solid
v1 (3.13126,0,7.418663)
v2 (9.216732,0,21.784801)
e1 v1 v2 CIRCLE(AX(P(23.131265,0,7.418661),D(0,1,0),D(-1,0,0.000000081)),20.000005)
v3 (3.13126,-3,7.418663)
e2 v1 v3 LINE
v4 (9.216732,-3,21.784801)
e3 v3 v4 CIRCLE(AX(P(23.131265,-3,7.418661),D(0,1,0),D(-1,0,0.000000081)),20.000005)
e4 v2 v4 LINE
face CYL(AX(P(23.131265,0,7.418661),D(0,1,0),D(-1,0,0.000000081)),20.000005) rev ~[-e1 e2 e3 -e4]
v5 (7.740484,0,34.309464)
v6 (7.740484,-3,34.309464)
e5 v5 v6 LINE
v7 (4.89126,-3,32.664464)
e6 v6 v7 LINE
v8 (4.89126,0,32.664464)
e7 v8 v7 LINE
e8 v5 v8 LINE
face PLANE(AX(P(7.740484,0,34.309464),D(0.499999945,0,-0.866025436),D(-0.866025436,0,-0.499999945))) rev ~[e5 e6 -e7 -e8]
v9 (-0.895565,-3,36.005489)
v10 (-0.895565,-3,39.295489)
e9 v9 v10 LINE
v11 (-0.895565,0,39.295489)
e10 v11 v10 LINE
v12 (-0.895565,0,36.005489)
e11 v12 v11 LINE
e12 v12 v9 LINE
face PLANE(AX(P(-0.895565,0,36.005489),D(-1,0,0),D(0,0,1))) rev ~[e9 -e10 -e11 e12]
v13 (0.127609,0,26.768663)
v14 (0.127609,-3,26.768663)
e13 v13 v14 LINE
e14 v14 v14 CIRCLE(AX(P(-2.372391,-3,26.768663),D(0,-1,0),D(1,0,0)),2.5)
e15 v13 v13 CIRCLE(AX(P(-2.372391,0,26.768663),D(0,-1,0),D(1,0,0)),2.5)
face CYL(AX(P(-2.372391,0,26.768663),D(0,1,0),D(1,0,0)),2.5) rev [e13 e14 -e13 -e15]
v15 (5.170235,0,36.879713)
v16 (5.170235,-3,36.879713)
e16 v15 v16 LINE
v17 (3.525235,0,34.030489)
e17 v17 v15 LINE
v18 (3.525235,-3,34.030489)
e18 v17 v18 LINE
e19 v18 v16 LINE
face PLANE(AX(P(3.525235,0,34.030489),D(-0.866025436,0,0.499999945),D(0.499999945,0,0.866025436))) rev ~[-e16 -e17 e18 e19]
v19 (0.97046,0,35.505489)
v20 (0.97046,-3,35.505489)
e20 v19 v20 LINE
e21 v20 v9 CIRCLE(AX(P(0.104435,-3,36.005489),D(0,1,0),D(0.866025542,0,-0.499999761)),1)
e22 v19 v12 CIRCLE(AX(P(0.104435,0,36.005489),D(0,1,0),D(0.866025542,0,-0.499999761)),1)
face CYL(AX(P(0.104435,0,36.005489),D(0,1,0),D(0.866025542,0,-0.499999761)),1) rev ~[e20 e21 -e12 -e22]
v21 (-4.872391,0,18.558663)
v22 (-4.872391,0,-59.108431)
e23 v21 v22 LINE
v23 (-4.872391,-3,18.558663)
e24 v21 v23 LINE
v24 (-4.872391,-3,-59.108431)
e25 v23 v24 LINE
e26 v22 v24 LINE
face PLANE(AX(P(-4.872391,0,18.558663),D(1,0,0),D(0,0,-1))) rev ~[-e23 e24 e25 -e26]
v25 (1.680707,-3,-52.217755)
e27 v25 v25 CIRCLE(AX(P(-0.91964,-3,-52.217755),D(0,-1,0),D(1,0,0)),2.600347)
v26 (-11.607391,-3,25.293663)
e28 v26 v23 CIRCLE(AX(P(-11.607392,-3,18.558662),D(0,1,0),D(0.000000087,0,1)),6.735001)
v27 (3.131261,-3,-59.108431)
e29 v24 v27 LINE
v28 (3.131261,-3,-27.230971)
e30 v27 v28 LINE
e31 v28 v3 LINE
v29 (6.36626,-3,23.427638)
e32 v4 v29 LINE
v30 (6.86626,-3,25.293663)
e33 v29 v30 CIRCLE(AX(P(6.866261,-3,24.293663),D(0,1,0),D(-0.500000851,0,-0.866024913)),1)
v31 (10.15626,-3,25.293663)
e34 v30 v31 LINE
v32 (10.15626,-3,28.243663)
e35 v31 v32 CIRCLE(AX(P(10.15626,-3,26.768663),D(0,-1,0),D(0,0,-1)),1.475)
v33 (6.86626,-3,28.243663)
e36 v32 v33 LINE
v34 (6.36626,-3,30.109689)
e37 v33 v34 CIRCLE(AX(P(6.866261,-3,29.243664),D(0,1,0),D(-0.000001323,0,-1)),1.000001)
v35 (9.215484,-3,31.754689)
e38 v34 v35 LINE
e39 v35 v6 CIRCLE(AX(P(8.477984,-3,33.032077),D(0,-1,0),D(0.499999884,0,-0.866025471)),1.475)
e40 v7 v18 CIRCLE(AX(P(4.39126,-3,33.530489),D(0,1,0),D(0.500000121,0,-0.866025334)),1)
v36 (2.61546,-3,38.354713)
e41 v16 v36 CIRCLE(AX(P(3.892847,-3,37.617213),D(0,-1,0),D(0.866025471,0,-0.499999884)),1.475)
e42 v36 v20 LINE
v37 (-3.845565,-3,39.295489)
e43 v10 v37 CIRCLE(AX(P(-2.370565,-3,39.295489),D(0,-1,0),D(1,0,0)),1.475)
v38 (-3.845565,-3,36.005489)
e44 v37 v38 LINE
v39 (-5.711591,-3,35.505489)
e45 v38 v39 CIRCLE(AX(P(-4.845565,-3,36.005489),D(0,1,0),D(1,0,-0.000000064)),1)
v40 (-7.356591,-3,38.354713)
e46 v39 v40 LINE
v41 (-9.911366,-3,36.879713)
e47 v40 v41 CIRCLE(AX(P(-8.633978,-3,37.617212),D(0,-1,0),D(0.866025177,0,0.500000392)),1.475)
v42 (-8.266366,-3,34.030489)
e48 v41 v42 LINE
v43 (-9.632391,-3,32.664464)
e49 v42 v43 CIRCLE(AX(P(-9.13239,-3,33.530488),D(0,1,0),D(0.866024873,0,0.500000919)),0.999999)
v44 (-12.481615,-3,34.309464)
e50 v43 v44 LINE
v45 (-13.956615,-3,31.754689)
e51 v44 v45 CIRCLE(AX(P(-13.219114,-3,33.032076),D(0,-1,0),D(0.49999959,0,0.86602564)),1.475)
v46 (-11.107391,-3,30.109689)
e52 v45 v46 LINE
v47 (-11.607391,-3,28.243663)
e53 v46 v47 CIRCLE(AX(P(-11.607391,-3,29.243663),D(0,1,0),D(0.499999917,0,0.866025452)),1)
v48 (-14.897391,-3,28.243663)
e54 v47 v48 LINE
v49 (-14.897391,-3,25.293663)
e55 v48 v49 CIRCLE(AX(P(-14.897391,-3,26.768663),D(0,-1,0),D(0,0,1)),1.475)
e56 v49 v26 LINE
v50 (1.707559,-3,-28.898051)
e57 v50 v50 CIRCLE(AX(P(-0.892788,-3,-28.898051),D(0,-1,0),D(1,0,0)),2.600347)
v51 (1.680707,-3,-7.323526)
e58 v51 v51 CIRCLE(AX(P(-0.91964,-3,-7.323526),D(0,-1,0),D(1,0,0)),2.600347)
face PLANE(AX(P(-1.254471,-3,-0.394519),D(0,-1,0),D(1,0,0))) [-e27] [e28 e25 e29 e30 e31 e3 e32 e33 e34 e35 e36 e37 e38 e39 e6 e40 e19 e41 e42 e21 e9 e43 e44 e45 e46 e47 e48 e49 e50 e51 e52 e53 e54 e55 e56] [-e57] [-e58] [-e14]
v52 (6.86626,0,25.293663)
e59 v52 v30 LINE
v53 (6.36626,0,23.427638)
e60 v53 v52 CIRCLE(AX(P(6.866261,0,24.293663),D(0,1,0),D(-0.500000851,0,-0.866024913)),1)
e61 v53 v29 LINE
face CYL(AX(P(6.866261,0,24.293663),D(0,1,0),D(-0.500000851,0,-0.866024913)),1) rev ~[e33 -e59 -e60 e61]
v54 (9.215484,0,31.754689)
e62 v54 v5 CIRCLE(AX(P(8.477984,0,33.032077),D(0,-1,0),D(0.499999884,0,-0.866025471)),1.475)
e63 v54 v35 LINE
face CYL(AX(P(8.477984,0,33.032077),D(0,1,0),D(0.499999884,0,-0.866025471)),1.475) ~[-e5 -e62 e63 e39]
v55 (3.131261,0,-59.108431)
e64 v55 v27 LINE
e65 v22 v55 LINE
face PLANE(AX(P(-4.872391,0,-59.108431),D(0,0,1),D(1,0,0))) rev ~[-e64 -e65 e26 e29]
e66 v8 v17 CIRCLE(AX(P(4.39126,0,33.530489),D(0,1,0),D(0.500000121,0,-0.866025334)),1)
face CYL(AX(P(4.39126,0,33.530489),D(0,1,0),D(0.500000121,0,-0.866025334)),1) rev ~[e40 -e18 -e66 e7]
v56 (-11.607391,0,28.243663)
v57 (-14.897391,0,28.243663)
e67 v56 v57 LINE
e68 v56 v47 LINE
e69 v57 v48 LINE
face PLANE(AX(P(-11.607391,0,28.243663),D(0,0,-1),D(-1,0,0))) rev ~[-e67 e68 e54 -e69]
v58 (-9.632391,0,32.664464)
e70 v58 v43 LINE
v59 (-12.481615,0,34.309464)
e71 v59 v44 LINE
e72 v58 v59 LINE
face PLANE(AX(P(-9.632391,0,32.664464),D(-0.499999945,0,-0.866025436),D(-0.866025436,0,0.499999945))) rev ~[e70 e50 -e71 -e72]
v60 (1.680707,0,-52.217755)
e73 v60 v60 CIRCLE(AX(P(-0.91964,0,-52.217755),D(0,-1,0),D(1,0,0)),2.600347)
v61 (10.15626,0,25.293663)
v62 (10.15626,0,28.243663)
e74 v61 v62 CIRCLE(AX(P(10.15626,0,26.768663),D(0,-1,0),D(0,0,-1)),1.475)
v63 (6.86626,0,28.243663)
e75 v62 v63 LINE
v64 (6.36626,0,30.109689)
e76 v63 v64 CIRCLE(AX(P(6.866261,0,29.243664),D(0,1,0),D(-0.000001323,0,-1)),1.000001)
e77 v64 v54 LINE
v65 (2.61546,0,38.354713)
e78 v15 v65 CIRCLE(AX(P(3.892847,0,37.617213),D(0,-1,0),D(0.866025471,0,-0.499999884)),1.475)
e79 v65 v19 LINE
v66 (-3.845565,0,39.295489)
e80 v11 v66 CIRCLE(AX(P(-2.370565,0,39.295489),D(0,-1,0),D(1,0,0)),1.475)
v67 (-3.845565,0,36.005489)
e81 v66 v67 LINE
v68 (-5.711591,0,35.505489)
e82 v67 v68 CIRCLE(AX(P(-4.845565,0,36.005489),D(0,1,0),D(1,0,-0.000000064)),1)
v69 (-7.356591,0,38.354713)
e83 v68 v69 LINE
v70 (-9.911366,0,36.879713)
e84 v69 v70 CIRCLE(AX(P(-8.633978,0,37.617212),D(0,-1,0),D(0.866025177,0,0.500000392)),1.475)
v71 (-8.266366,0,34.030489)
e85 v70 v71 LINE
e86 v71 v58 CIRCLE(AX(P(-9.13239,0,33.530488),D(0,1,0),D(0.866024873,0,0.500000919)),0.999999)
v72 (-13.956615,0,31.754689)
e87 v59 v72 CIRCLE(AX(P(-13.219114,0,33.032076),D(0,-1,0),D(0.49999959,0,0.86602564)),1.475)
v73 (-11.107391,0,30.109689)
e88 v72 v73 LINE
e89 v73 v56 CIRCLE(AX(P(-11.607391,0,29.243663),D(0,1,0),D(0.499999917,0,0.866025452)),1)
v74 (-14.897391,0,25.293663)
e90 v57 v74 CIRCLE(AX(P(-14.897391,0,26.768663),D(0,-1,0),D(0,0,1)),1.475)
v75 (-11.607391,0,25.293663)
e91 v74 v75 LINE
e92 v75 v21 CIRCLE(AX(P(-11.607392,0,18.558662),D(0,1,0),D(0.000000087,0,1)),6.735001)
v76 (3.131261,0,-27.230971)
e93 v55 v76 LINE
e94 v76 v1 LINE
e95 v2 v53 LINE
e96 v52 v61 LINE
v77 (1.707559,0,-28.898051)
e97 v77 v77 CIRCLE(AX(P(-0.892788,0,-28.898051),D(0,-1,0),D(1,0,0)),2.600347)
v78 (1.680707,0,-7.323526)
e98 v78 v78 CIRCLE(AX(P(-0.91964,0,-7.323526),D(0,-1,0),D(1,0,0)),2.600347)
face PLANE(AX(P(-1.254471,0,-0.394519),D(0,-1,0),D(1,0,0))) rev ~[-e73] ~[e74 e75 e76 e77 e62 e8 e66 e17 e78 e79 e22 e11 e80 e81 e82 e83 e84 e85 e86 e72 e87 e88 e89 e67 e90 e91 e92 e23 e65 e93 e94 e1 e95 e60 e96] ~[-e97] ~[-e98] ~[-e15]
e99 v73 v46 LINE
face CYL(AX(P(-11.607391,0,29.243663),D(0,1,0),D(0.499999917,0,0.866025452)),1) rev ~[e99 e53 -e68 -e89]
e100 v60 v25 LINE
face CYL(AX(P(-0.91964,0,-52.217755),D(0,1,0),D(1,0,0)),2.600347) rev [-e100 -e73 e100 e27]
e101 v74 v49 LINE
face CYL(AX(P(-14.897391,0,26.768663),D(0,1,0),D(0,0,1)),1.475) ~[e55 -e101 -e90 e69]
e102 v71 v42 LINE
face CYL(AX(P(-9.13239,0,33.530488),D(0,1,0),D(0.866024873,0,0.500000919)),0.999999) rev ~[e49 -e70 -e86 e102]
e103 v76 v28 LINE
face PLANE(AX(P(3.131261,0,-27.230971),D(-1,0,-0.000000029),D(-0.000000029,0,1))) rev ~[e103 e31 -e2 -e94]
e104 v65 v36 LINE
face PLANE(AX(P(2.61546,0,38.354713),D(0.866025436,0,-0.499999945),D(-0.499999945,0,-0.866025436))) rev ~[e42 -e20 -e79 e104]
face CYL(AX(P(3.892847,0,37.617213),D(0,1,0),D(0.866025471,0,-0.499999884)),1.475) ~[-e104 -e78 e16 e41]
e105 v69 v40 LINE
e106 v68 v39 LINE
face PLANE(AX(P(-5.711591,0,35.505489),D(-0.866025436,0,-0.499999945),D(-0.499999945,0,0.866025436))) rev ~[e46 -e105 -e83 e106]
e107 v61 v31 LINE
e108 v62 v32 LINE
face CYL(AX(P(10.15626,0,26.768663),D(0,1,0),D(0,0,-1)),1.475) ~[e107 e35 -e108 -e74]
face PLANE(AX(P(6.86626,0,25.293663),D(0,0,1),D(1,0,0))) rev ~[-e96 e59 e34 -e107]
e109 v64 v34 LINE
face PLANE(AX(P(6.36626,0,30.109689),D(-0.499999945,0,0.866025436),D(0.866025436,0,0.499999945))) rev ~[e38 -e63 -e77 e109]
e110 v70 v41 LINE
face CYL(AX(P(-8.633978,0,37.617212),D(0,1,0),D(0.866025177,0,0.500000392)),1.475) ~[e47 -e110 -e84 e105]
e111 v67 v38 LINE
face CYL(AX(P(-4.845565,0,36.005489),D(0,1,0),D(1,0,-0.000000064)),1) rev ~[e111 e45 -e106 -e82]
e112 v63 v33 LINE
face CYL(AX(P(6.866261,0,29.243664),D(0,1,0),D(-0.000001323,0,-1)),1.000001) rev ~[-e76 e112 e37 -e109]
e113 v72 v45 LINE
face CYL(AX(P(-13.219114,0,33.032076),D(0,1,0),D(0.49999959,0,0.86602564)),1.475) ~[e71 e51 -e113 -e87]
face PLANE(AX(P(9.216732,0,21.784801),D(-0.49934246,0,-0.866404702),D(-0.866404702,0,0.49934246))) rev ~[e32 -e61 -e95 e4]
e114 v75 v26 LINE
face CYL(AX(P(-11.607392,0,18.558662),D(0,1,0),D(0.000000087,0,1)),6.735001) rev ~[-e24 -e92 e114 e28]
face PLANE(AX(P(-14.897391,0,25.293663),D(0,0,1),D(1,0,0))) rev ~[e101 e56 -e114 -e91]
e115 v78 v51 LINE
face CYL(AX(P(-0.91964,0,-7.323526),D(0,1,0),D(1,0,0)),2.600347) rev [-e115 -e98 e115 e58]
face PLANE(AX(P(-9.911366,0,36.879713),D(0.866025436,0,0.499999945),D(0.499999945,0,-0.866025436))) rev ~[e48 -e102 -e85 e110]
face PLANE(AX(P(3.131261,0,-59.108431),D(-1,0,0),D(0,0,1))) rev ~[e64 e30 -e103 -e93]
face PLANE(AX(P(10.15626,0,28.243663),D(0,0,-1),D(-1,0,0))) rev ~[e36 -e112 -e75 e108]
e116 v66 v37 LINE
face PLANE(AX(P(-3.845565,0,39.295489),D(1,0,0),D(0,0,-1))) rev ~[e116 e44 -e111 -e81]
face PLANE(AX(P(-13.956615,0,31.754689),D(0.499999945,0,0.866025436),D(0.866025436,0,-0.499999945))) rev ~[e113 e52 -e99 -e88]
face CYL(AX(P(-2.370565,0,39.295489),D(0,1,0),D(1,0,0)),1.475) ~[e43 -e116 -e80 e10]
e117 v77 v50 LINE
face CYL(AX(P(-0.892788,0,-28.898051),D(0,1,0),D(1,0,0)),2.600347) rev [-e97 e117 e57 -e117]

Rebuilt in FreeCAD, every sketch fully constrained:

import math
import FreeCAD as App
import Part
import Sketcher
from FreeCAD import Vector
Q = App.Units.Quantity

doc = App.newDocument("Part")
params = doc.addObject("Spreadsheet::Sheet", "Params")
for row, (alias, value) in enumerate([
    ("sketch1_diameter", "5 mm"),
    ("sketch1_radius", "1 mm"),
    ("sketch1_width", "3.29 mm"),
    ("sketch1_length", "3.290001 mm"),
    ("pad1_length", "3 mm"),
], start=1):
    params.set(f"A{row}", alias)
    params.set(f"B{row}", "=" + value)
    params.setAlias(f"B{row}", alias)

body = doc.addObject("PartDesign::Body", "Body")

sketch1 = body.newObject("Sketcher::SketchObject", "Sketch")
sketch1.AttachmentSupport = (doc.getObject("XZ_Plane"), [""])
sketch1.MapMode = "FlatFace"
sketch1.addGeometry(Part.ArcOfCircle(Part.Circle(Vector(-11.6, 29.2, 0), Vector(0, 0, 1), 1), math.radians(-90), math.radians(60)), False)
sketch1.addGeometry(Part.LineSegment(Vector(-11.6, 28.2, 0), Vector(-14.9, 28.2, 0)), False)
sketch1.addGeometry(Part.ArcOfCircle(Part.Circle(Vector(-14.9, 26.8, 0), Vector(0, 0, 1), 1.5), math.radians(90), math.radians(270)), False)
sketch1.addGeometry(Part.LineSegment(Vector(-14.9, 25.3, 0), Vector(-11.6, 25.3, 0)), False)
sketch1.addGeometry(Part.ArcOfCircle(Part.Circle(Vector(-11.6, 18.6, 0), Vector(0, 0, 1), 6.7), math.radians(0), math.radians(90)), False)
sketch1.addGeometry(Part.LineSegment(Vector(-4.9, 18.6, 0), Vector(-4.9, -59.1, 0)), False)
sketch1.addGeometry(Part.LineSegment(Vector(-4.9, -59.1, 0), Vector(3.1, -59.1, 0)), False)
sketch1.addGeometry(Part.LineSegment(Vector(3.1, -59.1, 0), Vector(3.1, -27.2, 0)), False)
sketch1.addGeometry(Part.LineSegment(Vector(3.1, -27.2, 0), Vector(3.1, 7.4, 0)), False)
sketch1.addGeometry(Part.ArcOfCircle(Part.Circle(Vector(23.1, 7.4, 0), Vector(0, 0, 1), 20), math.radians(134), math.radians(180)), False)
sketch1.addGeometry(Part.LineSegment(Vector(9.2, 21.8, 0), Vector(6.4, 23.4, 0)), False)
sketch1.addGeometry(Part.ArcOfCircle(Part.Circle(Vector(6.9, 24.3, 0), Vector(0, 0, 1), 1), math.radians(90), math.radians(240)), False)
sketch1.addGeometry(Part.LineSegment(Vector(6.9, 25.3, 0), Vector(10.2, 25.3, 0)), False)
sketch1.addGeometry(Part.ArcOfCircle(Part.Circle(Vector(10.2, 26.8, 0), Vector(0, 0, 1), 1.5), math.radians(-90), math.radians(90)), False)
sketch1.addGeometry(Part.LineSegment(Vector(10.2, 28.2, 0), Vector(6.9, 28.2, 0)), False)
sketch1.addGeometry(Part.ArcOfCircle(Part.Circle(Vector(6.9, 29.2, 0), Vector(0, 0, 1), 1), math.radians(120), math.radians(270)), False)
sketch1.addGeometry(Part.LineSegment(Vector(6.4, 30.1, 0), Vector(9.2, 31.8, 0)), False)
sketch1.addGeometry(Part.ArcOfCircle(Part.Circle(Vector(8.5, 33, 0), Vector(0, 0, 1), 1.5), math.radians(-60), math.radians(120)), False)
sketch1.addGeometry(Part.LineSegment(Vector(7.7, 34.3, 0), Vector(4.9, 32.7, 0)), False)
sketch1.addGeometry(Part.ArcOfCircle(Part.Circle(Vector(4.4, 33.5, 0), Vector(0, 0, 1), 1), math.radians(150), math.radians(300)), False)
sketch1.addGeometry(Part.LineSegment(Vector(3.5, 34, 0), Vector(5.2, 36.9, 0)), False)
sketch1.addGeometry(Part.ArcOfCircle(Part.Circle(Vector(3.9, 37.6, 0), Vector(0, 0, 1), 1.5), math.radians(-30), math.radians(150)), False)
sketch1.addGeometry(Part.LineSegment(Vector(2.6, 38.4, 0), Vector(1, 35.5, 0)), False)
sketch1.addGeometry(Part.ArcOfCircle(Part.Circle(Vector(0.1, 36, 0), Vector(0, 0, 1), 1), math.radians(180), math.radians(330)), False)
sketch1.addGeometry(Part.LineSegment(Vector(-0.9, 36, 0), Vector(-0.9, 39.3, 0)), False)
sketch1.addGeometry(Part.ArcOfCircle(Part.Circle(Vector(-2.4, 39.3, 0), Vector(0, 0, 1), 1.5), math.radians(0), math.radians(180)), False)
sketch1.addGeometry(Part.LineSegment(Vector(-3.8, 39.3, 0), Vector(-3.8, 36, 0)), False)
sketch1.addGeometry(Part.ArcOfCircle(Part.Circle(Vector(-4.8, 36, 0), Vector(0, 0, 1), 1), math.radians(-150), math.radians(0)), False)
sketch1.addGeometry(Part.LineSegment(Vector(-5.7, 35.5, 0), Vector(-7.4, 38.4, 0)), False)
sketch1.addGeometry(Part.ArcOfCircle(Part.Circle(Vector(-8.6, 37.6, 0), Vector(0, 0, 1), 1.5), math.radians(30), math.radians(210)), False)
sketch1.addGeometry(Part.LineSegment(Vector(-9.9, 36.9, 0), Vector(-8.3, 34, 0)), False)
sketch1.addGeometry(Part.ArcOfCircle(Part.Circle(Vector(-9.1, 33.5, 0), Vector(0, 0, 1), 1), math.radians(-120), math.radians(30)), False)
sketch1.addGeometry(Part.LineSegment(Vector(-9.6, 32.7, 0), Vector(-12.5, 34.3, 0)), False)
sketch1.addGeometry(Part.ArcOfCircle(Part.Circle(Vector(-13.2, 33, 0), Vector(0, 0, 1), 1.5), math.radians(60), math.radians(240)), False)
sketch1.addGeometry(Part.LineSegment(Vector(-14, 31.8, 0), Vector(-11.1, 30.1, 0)), False)
sketch1.addGeometry(Part.Circle(Vector(-0.9, -52.2, 0), Vector(0, 0, 1), 2.6), False)
sketch1.addGeometry(Part.Circle(Vector(-0.9, -28.9, 0), Vector(0, 0, 1), 2.6), False)
sketch1.addGeometry(Part.Circle(Vector(-2.4, 26.8, 0), Vector(0, 0, 1), 2.5), False)
sketch1.addGeometry(Part.Circle(Vector(-0.9, -7.3, 0), Vector(0, 0, 1), 2.6), False)
sketch1.addConstraint(Sketcher.Constraint("Tangent", 0, 1, 1, 1))
sketch1.addConstraint(Sketcher.Constraint("Tangent", 1, 2, 2, 1))
sketch1.addConstraint(Sketcher.Constraint("Tangent", 2, 2, 3, 1))
sketch1.addConstraint(Sketcher.Constraint("Tangent", 3, 2, 4, 2))
sketch1.addConstraint(Sketcher.Constraint("Tangent", 4, 1, 5, 1))
sketch1.addConstraint(Sketcher.Constraint("Coincident", 5, 2, 6, 1))
sketch1.addConstraint(Sketcher.Constraint("Coincident", 6, 2, 7, 1))
sketch1.addConstraint(Sketcher.Constraint("Coincident", 7, 2, 8, 1))
sketch1.addConstraint(Sketcher.Constraint("Tangent", 8, 2, 9, 2))
sketch1.addConstraint(Sketcher.Constraint("Coincident", 9, 1, 10, 1))
sketch1.addConstraint(Sketcher.Constraint("Coincident", 10, 2, 11, 2))
sketch1.addConstraint(Sketcher.Constraint("Tangent", 11, 1, 12, 1))
sketch1.addConstraint(Sketcher.Constraint("Tangent", 12, 2, 13, 1))
sketch1.addConstraint(Sketcher.Constraint("Tangent", 13, 2, 14, 1))
sketch1.addConstraint(Sketcher.Constraint("Tangent", 14, 2, 15, 2))
sketch1.addConstraint(Sketcher.Constraint("Tangent", 15, 1, 16, 1))
sketch1.addConstraint(Sketcher.Constraint("Tangent", 16, 2, 17, 1))
sketch1.addConstraint(Sketcher.Constraint("Tangent", 17, 2, 18, 1))
sketch1.addConstraint(Sketcher.Constraint("Tangent", 18, 2, 19, 2))
sketch1.addConstraint(Sketcher.Constraint("Tangent", 19, 1, 20, 1))
sketch1.addConstraint(Sketcher.Constraint("Tangent", 20, 2, 21, 1))
sketch1.addConstraint(Sketcher.Constraint("Tangent", 21, 2, 22, 1))
sketch1.addConstraint(Sketcher.Constraint("Tangent", 22, 2, 23, 2))
sketch1.addConstraint(Sketcher.Constraint("Tangent", 23, 1, 24, 1))
sketch1.addConstraint(Sketcher.Constraint("Tangent", 24, 2, 25, 1))
sketch1.addConstraint(Sketcher.Constraint("Tangent", 25, 2, 26, 1))
sketch1.addConstraint(Sketcher.Constraint("Tangent", 26, 2, 27, 2))
sketch1.addConstraint(Sketcher.Constraint("Tangent", 27, 1, 28, 1))
sketch1.addConstraint(Sketcher.Constraint("Tangent", 28, 2, 29, 1))
sketch1.addConstraint(Sketcher.Constraint("Tangent", 29, 2, 30, 1))
sketch1.addConstraint(Sketcher.Constraint("Tangent", 30, 2, 31, 2))
sketch1.addConstraint(Sketcher.Constraint("Tangent", 31, 1, 32, 1))
sketch1.addConstraint(Sketcher.Constraint("Tangent", 32, 2, 33, 1))
sketch1.addConstraint(Sketcher.Constraint("Tangent", 33, 2, 34, 1))
sketch1.addConstraint(Sketcher.Constraint("Tangent", 34, 2, 0, 2))
sketch1.addConstraint(Sketcher.Constraint("Horizontal", 1))
sketch1.addConstraint(Sketcher.Constraint("Horizontal", 3))
sketch1.addConstraint(Sketcher.Constraint("Vertical", 5))
sketch1.addConstraint(Sketcher.Constraint("Horizontal", 6))
sketch1.addConstraint(Sketcher.Constraint("Vertical", 7))
sketch1.addConstraint(Sketcher.Constraint("Vertical", 8))
sketch1.addConstraint(Sketcher.Constraint("Horizontal", 12))
sketch1.addConstraint(Sketcher.Constraint("Horizontal", 14))
sketch1.addConstraint(Sketcher.Constraint("Vertical", 24))
sketch1.addConstraint(Sketcher.Constraint("Vertical", 26))
sketch1.addConstraint(Sketcher.Constraint("Equal", 0, 11))
sketch1.addConstraint(Sketcher.Constraint("Equal", 2, 13))
sketch1.addConstraint(Sketcher.Constraint("Equal", 11, 15))
sketch1.addConstraint(Sketcher.Constraint("Equal", 13, 17))
sketch1.addConstraint(Sketcher.Constraint("Equal", 15, 19))
sketch1.addConstraint(Sketcher.Constraint("Equal", 17, 21))
sketch1.addConstraint(Sketcher.Constraint("Equal", 19, 23))
sketch1.addConstraint(Sketcher.Constraint("Equal", 21, 25))
sketch1.addConstraint(Sketcher.Constraint("Equal", 23, 27))
sketch1.addConstraint(Sketcher.Constraint("Equal", 25, 29))
sketch1.addConstraint(Sketcher.Constraint("Equal", 27, 31))
sketch1.addConstraint(Sketcher.Constraint("Equal", 29, 33))
sketch1.addConstraint(Sketcher.Constraint("Equal", 35, 36))
sketch1.addConstraint(Sketcher.Constraint("Equal", 36, 38))
sketch1.addConstraint(Sketcher.Constraint("Parallel", 16, 18))
sketch1.addConstraint(Sketcher.Constraint("Parallel", 20, 22))
sketch1.addConstraint(Sketcher.Constraint("Perpendicular", 18, 28))
sketch1.addConstraint(Sketcher.Constraint("Parallel", 28, 30))
sketch1.addConstraint(Sketcher.Constraint("Perpendicular", 22, 32))
sketch1.addConstraint(Sketcher.Constraint("Parallel", 32, 34))
sketch1.addConstraint(Sketcher.Constraint("Horizontal", 2, 3, 13, 3))
sketch1.addConstraint(Sketcher.Constraint("Horizontal", 23, 3, 27, 3))
sketch1.addConstraint(Sketcher.Constraint("Horizontal", 21, 3, 29, 3))
sketch1.addConstraint(Sketcher.Constraint("Horizontal", 19, 3, 31, 3))
sketch1.addConstraint(Sketcher.Constraint("Horizontal", 17, 3, 33, 3))
sketch1.addConstraint(Sketcher.Constraint("Horizontal", 13, 3, 37, 3))
sketch1.addConstraint(Sketcher.Constraint("Horizontal", 22, 2, 27, 1))
sketch1.addConstraint(Sketcher.Constraint("Vertical", 0, 3, 4, 3))
sketch1.addConstraint(Sketcher.Constraint("Vertical", 11, 3, 15, 3))
sketch1.addConstraint(Sketcher.Constraint("Vertical", 35, 3, 38, 3))
sketch1.addConstraint(Sketcher.Constraint("Vertical", 10, 2, 15, 1))
sketch1.addConstraint(Sketcher.Constraint("Equal", 3, 12))
sketch1.addConstraint(Sketcher.Constraint("Equal", 14, 24))
sketch1.addConstraint(Sketcher.Constraint("Equal", 10, 16))
sketch1.addConstraint(Sketcher.Constraint("Equal", 16, 18))
sketch1.addConstraint(Sketcher.Constraint("Equal", 18, 20))
sketch1.addConstraint(Sketcher.Constraint("Equal", 20, 22))
sketch1.addConstraint(Sketcher.Constraint("Diameter", 37, Q("5 mm")))
sketch1.addConstraint(Sketcher.Constraint("Radius", 0, Q("1 mm")))
sketch1.addConstraint(Sketcher.Constraint("Angle", 16, Q("29.999996 deg")))
sketch1.addConstraint(Sketcher.Constraint("Radius", 2, Q("1.475 mm")))
sketch1.addConstraint(Sketcher.Constraint("Radius", 4, Q("6.735001 mm")))
sketch1.addConstraint(Sketcher.Constraint("DistanceX", 1, 2, 1, 1, Q("3.29 mm")))
sketch1.addConstraint(Sketcher.Constraint("DistanceX", 4, 1, 37, 3, Q("2.5 mm")))
sketch1.addConstraint(Sketcher.Constraint("Distance", 10, Q("3.290001 mm")))
sketch1.addConstraint(Sketcher.Constraint("DistanceY", 9, 3, 4, 3, Q("11.140001 mm")))
sketch1.addConstraint(Sketcher.Constraint("Diameter", 35, Q("5.200694 mm")))
sketch1.addConstraint(Sketcher.Constraint("Radius", 9, Q("20.000005 mm")))
sketch1.addConstraint(Sketcher.Constraint("DistanceX", 8, 2, 11, 3, Q("3.735001 mm")))
sketch1.addConstraint(Sketcher.Constraint("DistanceY", 7, 1, 7, 2, Q("31.87746 mm")))
sketch1.addConstraint(Sketcher.Constraint("DistanceY", -1, 1, 9, 1, Q("21.784801 mm")))
sketch1.addConstraint(Sketcher.Constraint("DistanceX", 35, 3, 11, 3, Q("7.785901 mm")))
sketch1.addConstraint(Sketcher.Constraint("DistanceY", 5, 2, 5, 1, Q("77.667094 mm")))
sketch1.addConstraint(Sketcher.Constraint("DistanceX", 0, 3, -1, 1, Q("11.607391 mm")))
sketch1.addConstraint(Sketcher.Constraint("DistanceX", 36, 3, -1, 1, Q("0.892788 mm")))
sketch1.addConstraint(Sketcher.Constraint("DistanceY", 36, 3, -1, 1, Q("28.898051 mm")))
sketch1.addConstraint(Sketcher.Constraint("DistanceY", 35, 3, 13, 3, Q("78.986418 mm")))
sketch1.addConstraint(Sketcher.Constraint("DistanceY", 38, 3, 4, 3, Q("25.882188 mm")))
sketch1.setExpression("Constraints[82]", "Params.sketch1_diameter")
sketch1.setExpression("Constraints[83]", "Params.sketch1_radius")
sketch1.setExpression("Constraints[87]", "Params.sketch1_width")
sketch1.setExpression("Constraints[89]", "Params.sketch1_length")
pad1 = body.newObject("PartDesign::Pad", "Pad")
pad1.Profile = sketch1
pad1.setExpression("Length", "Params.pad1_length")

doc.recompute()
